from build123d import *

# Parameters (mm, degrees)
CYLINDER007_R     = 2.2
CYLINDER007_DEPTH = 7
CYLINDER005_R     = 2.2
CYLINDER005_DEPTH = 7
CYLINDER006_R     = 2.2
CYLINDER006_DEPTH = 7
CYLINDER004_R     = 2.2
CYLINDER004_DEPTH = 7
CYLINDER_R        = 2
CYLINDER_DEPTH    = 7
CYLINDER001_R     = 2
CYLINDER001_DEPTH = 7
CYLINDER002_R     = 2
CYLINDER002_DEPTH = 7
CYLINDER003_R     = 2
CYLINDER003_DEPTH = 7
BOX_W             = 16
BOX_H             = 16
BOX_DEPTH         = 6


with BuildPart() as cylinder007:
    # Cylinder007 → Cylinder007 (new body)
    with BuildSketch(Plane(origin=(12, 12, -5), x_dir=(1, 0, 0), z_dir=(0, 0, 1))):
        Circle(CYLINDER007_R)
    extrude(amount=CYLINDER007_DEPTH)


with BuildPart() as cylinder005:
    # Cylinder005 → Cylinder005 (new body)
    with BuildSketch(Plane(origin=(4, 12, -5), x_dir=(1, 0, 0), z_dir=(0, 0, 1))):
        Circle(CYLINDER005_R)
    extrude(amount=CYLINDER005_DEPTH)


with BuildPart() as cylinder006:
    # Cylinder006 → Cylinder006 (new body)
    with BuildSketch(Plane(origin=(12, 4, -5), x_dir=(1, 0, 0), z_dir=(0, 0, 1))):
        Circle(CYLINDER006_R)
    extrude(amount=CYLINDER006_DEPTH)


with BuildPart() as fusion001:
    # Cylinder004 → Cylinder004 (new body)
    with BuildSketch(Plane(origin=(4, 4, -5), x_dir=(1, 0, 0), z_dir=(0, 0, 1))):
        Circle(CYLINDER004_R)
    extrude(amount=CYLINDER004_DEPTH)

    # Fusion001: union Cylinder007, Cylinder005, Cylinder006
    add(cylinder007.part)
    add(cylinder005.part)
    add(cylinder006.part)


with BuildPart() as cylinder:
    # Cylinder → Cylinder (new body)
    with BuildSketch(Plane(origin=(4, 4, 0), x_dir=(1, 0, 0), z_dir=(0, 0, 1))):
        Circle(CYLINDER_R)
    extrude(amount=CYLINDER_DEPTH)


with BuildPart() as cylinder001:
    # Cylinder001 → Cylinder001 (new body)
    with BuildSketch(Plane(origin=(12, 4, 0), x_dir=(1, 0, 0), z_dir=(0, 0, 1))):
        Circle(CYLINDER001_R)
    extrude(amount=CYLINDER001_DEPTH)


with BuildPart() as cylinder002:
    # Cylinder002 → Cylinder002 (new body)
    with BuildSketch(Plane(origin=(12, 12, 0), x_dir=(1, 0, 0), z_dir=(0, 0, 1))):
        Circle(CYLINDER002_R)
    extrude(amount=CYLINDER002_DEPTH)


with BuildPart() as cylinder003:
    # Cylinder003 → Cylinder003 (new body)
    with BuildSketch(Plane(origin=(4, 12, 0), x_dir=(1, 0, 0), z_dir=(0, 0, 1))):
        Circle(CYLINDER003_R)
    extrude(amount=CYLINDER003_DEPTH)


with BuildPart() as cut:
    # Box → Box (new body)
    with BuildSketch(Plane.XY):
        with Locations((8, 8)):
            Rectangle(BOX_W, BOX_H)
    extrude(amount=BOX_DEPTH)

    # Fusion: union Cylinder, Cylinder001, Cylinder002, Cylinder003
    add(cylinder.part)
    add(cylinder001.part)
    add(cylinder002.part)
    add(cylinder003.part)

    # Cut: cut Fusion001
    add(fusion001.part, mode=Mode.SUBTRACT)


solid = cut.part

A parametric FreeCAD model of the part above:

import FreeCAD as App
import Part
import Sketcher
from FreeCAD import Vector


def add_polygon(sketch, points):
    """Adds a closed chain of lines whose ends are joined by coincident constraints."""
    first, n = sketch.GeometryCount, len(points)
    for a, b in zip(points, points[1:] + points[:1]):
        sketch.addGeometry(Part.LineSegment(App.Vector(*a, 0), App.Vector(*b, 0)), False)
    for i in range(n):
        sketch.addConstraint(Sketcher.Constraint("Coincident", first + i, 2, first + (i + 1) % n, 1))

doc = App.newDocument("Part")
params = doc.addObject("Spreadsheet::Sheet", "Params")
for row, (alias, value) in enumerate([
    ("sketch1_diameter", "4.4 mm"),
    ("pad1_length", "7 mm"),
    ("sketch2_diameter", "4.4 mm"),
    ("pad2_length", "7 mm"),
    ("sketch3_diameter", "4.4 mm"),
    ("pad3_length", "7 mm"),
    ("sketch4_diameter", "4.4 mm"),
    ("pad4_length", "7 mm"),
    ("sketch5_diameter", "4 mm"),
    ("pad5_length", "7 mm"),
    ("sketch6_diameter", "4 mm"),
    ("pad6_length", "7 mm"),
    ("sketch7_diameter", "4 mm"),
    ("pad7_length", "7 mm"),
    ("sketch8_diameter", "4 mm"),
    ("pad8_length", "7 mm"),
    ("sketch9_width", "16 mm"),
    ("pad9_length", "6 mm"),
], start=1):
    params.set(f"A{row}", alias)
    params.set(f"B{row}", "=" + value)
    params.setAlias(f"B{row}", alias)

body = doc.addObject("PartDesign::Body", "Body")

sketch1 = body.newObject("Sketcher::SketchObject", "Sketch")
sketch1.AttachmentSupport = (doc.getObject("XY_Plane"), [""])
sketch1.MapMode = "FlatFace"
sketch1.AttachmentOffset = App.Placement(Vector(0, 0, -5), App.Rotation())
sketch1.addGeometry(Part.Circle(Vector(12, 12, 0), Vector(0, 0, 1), 2.2), False)
sketch1.addConstraint(Sketcher.Constraint("Diameter", 0, 4.4))
sketch1.addConstraint(Sketcher.Constraint("DistanceX", -1, 1, 0, 3, 12.0))
sketch1.addConstraint(Sketcher.Constraint("DistanceY", -1, 1, 0, 3, 12.0))
sketch1.setExpression("Constraints[0]", "Params.sketch1_diameter")
pad1 = body.newObject("PartDesign::Pad", "Pad")
pad1.Profile = sketch1
pad1.setExpression("Length", "Params.pad1_length")
body2 = doc.addObject("PartDesign::Body", "Body001")

sketch2 = body2.newObject("Sketcher::SketchObject", "Sketch001")
sketch2.AttachmentSupport = (doc.getObject("XY_Plane001"), [""])
sketch2.MapMode = "FlatFace"
sketch2.AttachmentOffset = App.Placement(Vector(0, 0, -5), App.Rotation())
sketch2.addGeometry(Part.Circle(Vector(4, 12, 0), Vector(0, 0, 1), 2.2), False)
sketch2.addConstraint(Sketcher.Constraint("Diameter", 0, 4.4))
sketch2.addConstraint(Sketcher.Constraint("DistanceX", -1, 1, 0, 3, 4.0))
sketch2.addConstraint(Sketcher.Constraint("DistanceY", -1, 1, 0, 3, 12.0))
sketch2.setExpression("Constraints[0]", "Params.sketch2_diameter")
pad2 = body2.newObject("PartDesign::Pad", "Pad001")
pad2.Profile = sketch2
pad2.setExpression("Length", "Params.pad2_length")
body3 = doc.addObject("PartDesign::Body", "Body002")

sketch3 = body3.newObject("Sketcher::SketchObject", "Sketch002")
sketch3.AttachmentSupport = (doc.getObject("XY_Plane002"), [""])
sketch3.MapMode = "FlatFace"
sketch3.AttachmentOffset = App.Placement(Vector(0, 0, -5), App.Rotation())
sketch3.addGeometry(Part.Circle(Vector(12, 4, 0), Vector(0, 0, 1), 2.2), False)
sketch3.addConstraint(Sketcher.Constraint("Diameter", 0, 4.4))
sketch3.addConstraint(Sketcher.Constraint("DistanceX", -1, 1, 0, 3, 12.0))
sketch3.addConstraint(Sketcher.Constraint("DistanceY", -1, 1, 0, 3, 4.0))
sketch3.setExpression("Constraints[0]", "Params.sketch3_diameter")
pad3 = body3.newObject("PartDesign::Pad", "Pad002")
pad3.Profile = sketch3
pad3.setExpression("Length", "Params.pad3_length")
body4 = doc.addObject("PartDesign::Body", "Body003")
body4.AllowCompound = True

sketch4 = body4.newObject("Sketcher::SketchObject", "Sketch003")
sketch4.AttachmentSupport = (doc.getObject("XY_Plane003"), [""])
sketch4.MapMode = "FlatFace"
sketch4.AttachmentOffset = App.Placement(Vector(0, 0, -5), App.Rotation())
sketch4.addGeometry(Part.Circle(Vector(4, 4, 0), Vector(0, 0, 1), 2.2), False)
sketch4.addConstraint(Sketcher.Constraint("Diameter", 0, 4.4))
sketch4.addConstraint(Sketcher.Constraint("DistanceX", -1, 1, 0, 3, 4.0))
sketch4.addConstraint(Sketcher.Constraint("DistanceY", -1, 1, 0, 3, 4.0))
sketch4.setExpression("Constraints[0]", "Params.sketch4_diameter")
pad4 = body4.newObject("PartDesign::Pad", "Pad003")
pad4.Profile = sketch4
pad4.setExpression("Length", "Params.pad4_length")
doc.recompute()

boolean = body4.newObject("PartDesign::Boolean", "Boolean")
boolean.Type = "Fuse"
boolean.addObjects([body])
doc.recompute()

boolean2 = body4.newObject("PartDesign::Boolean", "Boolean001")
boolean2.Type = "Fuse"
boolean2.addObjects([body2])
doc.recompute()

boolean3 = body4.newObject("PartDesign::Boolean", "Boolean002")
boolean3.Type = "Fuse"
boolean3.addObjects([body3])
body5 = doc.addObject("PartDesign::Body", "Body004")

sketch5 = body5.newObject("Sketcher::SketchObject", "Sketch004")
sketch5.AttachmentSupport = (doc.getObject("XY_Plane004"), [""])
sketch5.MapMode = "FlatFace"
sketch5.addGeometry(Part.Circle(Vector(4, 4, 0), Vector(0, 0, 1), 2), False)
sketch5.addConstraint(Sketcher.Constraint("Diameter", 0, 4.0))
sketch5.addConstraint(Sketcher.Constraint("DistanceX", -1, 1, 0, 3, 4.0))
sketch5.addConstraint(Sketcher.Constraint("DistanceY", -1, 1, 0, 3, 4.0))
sketch5.setExpression("Constraints[0]", "Params.sketch5_diameter")
pad5 = body5.newObject("PartDesign::Pad", "Pad004")
pad5.Profile = sketch5
pad5.setExpression("Length", "Params.pad5_length")
body6 = doc.addObject("PartDesign::Body", "Body005")

sketch6 = body6.newObject("Sketcher::SketchObject", "Sketch005")
sketch6.AttachmentSupport = (doc.getObject("XY_Plane005"), [""])
sketch6.MapMode = "FlatFace"
sketch6.addGeometry(Part.Circle(Vector(12, 4, 0), Vector(0, 0, 1), 2), False)
sketch6.addConstraint(Sketcher.Constraint("Diameter", 0, 4.0))
sketch6.addConstraint(Sketcher.Constraint("DistanceX", -1, 1, 0, 3, 12.0))
sketch6.addConstraint(Sketcher.Constraint("DistanceY", -1, 1, 0, 3, 4.0))
sketch6.setExpression("Constraints[0]", "Params.sketch6_diameter")
pad6 = body6.newObject("PartDesign::Pad", "Pad005")
pad6.Profile = sketch6
pad6.setExpression("Length", "Params.pad6_length")
body7 = doc.addObject("PartDesign::Body", "Body006")

sketch7 = body7.newObject("Sketcher::SketchObject", "Sketch006")
sketch7.AttachmentSupport = (doc.getObject("XY_Plane006"), [""])
sketch7.MapMode = "FlatFace"
sketch7.addGeometry(Part.Circle(Vector(12, 12, 0), Vector(0, 0, 1), 2), False)
sketch7.addConstraint(Sketcher.Constraint("Diameter", 0, 4.0))
sketch7.addConstraint(Sketcher.Constraint("DistanceX", -1, 1, 0, 3, 12.0))
sketch7.addConstraint(Sketcher.Constraint("DistanceY", -1, 1, 0, 3, 12.0))
sketch7.setExpression("Constraints[0]", "Params.sketch7_diameter")
pad7 = body7.newObject("PartDesign::Pad", "Pad006")
pad7.Profile = sketch7
pad7.setExpression("Length", "Params.pad7_length")
body8 = doc.addObject("PartDesign::Body", "Body007")

sketch8 = body8.newObject("Sketcher::SketchObject", "Sketch007")
sketch8.AttachmentSupport = (doc.getObject("XY_Plane007"), [""])
sketch8.MapMode = "FlatFace"
sketch8.addGeometry(Part.Circle(Vector(4, 12, 0), Vector(0, 0, 1), 2), False)
sketch8.addConstraint(Sketcher.Constraint("Diameter", 0, 4.0))
sketch8.addConstraint(Sketcher.Constraint("DistanceX", -1, 1, 0, 3, 4.0))
sketch8.addConstraint(Sketcher.Constraint("DistanceY", -1, 1, 0, 3, 12.0))
sketch8.setExpression("Constraints[0]", "Params.sketch8_diameter")
pad8 = body8.newObject("PartDesign::Pad", "Pad007")
pad8.Profile = sketch8
pad8.setExpression("Length", "Params.pad8_length")
body9 = doc.addObject("PartDesign::Body", "Body008")

sketch9 = body9.newObject("Sketcher::SketchObject", "Sketch008")
sketch9.AttachmentSupport = (doc.getObject("XY_Plane008"), [""])
sketch9.MapMode = "FlatFace"
add_polygon(sketch9, [(0, 16), (0, 0), (16, 0), (16, 16)])
sketch9.addConstraint(Sketcher.Constraint("Vertical", 0))
sketch9.addConstraint(Sketcher.Constraint("Horizontal", 1))
sketch9.addConstraint(Sketcher.Constraint("Vertical", 2))
sketch9.addConstraint(Sketcher.Constraint("Horizontal", 3))
sketch9.addConstraint(Sketcher.Constraint("Coincident", 0, 2, -1, 1))
sketch9.addConstraint(Sketcher.Constraint("Equal", 3, 0))
sketch9.addConstraint(Sketcher.Constraint("DistanceX", 1, 1, 1, 2, 16.0))
sketch9.setExpression("Constraints[10]", "Params.sketch9_width")
pad9 = body9.newObject("PartDesign::Pad", "Pad008")
pad9.Profile = sketch9
pad9.setExpression("Length", "Params.pad9_length")
doc.recompute()

boolean4 = body9.newObject("PartDesign::Boolean", "Boolean003")
boolean4.Type = "Fuse"
boolean4.addObjects([body5])
doc.recompute()

boolean5 = body9.newObject("PartDesign::Boolean", "Boolean004")
boolean5.Type = "Fuse"
boolean5.addObjects([body6])
doc.recompute()

boolean6 = body9.newObject("PartDesign::Boolean", "Boolean005")
boolean6.Type = "Fuse"
boolean6.addObjects([body7])
doc.recompute()

boolean7 = body9.newObject("PartDesign::Boolean", "Boolean006")
boolean7.Type = "Fuse"
boolean7.addObjects([body8])
doc.recompute()

boolean8 = body9.newObject("PartDesign::Boolean", "Boolean007")
boolean8.Type = "Cut"
boolean8.addObjects([body4])

doc.recompute()
